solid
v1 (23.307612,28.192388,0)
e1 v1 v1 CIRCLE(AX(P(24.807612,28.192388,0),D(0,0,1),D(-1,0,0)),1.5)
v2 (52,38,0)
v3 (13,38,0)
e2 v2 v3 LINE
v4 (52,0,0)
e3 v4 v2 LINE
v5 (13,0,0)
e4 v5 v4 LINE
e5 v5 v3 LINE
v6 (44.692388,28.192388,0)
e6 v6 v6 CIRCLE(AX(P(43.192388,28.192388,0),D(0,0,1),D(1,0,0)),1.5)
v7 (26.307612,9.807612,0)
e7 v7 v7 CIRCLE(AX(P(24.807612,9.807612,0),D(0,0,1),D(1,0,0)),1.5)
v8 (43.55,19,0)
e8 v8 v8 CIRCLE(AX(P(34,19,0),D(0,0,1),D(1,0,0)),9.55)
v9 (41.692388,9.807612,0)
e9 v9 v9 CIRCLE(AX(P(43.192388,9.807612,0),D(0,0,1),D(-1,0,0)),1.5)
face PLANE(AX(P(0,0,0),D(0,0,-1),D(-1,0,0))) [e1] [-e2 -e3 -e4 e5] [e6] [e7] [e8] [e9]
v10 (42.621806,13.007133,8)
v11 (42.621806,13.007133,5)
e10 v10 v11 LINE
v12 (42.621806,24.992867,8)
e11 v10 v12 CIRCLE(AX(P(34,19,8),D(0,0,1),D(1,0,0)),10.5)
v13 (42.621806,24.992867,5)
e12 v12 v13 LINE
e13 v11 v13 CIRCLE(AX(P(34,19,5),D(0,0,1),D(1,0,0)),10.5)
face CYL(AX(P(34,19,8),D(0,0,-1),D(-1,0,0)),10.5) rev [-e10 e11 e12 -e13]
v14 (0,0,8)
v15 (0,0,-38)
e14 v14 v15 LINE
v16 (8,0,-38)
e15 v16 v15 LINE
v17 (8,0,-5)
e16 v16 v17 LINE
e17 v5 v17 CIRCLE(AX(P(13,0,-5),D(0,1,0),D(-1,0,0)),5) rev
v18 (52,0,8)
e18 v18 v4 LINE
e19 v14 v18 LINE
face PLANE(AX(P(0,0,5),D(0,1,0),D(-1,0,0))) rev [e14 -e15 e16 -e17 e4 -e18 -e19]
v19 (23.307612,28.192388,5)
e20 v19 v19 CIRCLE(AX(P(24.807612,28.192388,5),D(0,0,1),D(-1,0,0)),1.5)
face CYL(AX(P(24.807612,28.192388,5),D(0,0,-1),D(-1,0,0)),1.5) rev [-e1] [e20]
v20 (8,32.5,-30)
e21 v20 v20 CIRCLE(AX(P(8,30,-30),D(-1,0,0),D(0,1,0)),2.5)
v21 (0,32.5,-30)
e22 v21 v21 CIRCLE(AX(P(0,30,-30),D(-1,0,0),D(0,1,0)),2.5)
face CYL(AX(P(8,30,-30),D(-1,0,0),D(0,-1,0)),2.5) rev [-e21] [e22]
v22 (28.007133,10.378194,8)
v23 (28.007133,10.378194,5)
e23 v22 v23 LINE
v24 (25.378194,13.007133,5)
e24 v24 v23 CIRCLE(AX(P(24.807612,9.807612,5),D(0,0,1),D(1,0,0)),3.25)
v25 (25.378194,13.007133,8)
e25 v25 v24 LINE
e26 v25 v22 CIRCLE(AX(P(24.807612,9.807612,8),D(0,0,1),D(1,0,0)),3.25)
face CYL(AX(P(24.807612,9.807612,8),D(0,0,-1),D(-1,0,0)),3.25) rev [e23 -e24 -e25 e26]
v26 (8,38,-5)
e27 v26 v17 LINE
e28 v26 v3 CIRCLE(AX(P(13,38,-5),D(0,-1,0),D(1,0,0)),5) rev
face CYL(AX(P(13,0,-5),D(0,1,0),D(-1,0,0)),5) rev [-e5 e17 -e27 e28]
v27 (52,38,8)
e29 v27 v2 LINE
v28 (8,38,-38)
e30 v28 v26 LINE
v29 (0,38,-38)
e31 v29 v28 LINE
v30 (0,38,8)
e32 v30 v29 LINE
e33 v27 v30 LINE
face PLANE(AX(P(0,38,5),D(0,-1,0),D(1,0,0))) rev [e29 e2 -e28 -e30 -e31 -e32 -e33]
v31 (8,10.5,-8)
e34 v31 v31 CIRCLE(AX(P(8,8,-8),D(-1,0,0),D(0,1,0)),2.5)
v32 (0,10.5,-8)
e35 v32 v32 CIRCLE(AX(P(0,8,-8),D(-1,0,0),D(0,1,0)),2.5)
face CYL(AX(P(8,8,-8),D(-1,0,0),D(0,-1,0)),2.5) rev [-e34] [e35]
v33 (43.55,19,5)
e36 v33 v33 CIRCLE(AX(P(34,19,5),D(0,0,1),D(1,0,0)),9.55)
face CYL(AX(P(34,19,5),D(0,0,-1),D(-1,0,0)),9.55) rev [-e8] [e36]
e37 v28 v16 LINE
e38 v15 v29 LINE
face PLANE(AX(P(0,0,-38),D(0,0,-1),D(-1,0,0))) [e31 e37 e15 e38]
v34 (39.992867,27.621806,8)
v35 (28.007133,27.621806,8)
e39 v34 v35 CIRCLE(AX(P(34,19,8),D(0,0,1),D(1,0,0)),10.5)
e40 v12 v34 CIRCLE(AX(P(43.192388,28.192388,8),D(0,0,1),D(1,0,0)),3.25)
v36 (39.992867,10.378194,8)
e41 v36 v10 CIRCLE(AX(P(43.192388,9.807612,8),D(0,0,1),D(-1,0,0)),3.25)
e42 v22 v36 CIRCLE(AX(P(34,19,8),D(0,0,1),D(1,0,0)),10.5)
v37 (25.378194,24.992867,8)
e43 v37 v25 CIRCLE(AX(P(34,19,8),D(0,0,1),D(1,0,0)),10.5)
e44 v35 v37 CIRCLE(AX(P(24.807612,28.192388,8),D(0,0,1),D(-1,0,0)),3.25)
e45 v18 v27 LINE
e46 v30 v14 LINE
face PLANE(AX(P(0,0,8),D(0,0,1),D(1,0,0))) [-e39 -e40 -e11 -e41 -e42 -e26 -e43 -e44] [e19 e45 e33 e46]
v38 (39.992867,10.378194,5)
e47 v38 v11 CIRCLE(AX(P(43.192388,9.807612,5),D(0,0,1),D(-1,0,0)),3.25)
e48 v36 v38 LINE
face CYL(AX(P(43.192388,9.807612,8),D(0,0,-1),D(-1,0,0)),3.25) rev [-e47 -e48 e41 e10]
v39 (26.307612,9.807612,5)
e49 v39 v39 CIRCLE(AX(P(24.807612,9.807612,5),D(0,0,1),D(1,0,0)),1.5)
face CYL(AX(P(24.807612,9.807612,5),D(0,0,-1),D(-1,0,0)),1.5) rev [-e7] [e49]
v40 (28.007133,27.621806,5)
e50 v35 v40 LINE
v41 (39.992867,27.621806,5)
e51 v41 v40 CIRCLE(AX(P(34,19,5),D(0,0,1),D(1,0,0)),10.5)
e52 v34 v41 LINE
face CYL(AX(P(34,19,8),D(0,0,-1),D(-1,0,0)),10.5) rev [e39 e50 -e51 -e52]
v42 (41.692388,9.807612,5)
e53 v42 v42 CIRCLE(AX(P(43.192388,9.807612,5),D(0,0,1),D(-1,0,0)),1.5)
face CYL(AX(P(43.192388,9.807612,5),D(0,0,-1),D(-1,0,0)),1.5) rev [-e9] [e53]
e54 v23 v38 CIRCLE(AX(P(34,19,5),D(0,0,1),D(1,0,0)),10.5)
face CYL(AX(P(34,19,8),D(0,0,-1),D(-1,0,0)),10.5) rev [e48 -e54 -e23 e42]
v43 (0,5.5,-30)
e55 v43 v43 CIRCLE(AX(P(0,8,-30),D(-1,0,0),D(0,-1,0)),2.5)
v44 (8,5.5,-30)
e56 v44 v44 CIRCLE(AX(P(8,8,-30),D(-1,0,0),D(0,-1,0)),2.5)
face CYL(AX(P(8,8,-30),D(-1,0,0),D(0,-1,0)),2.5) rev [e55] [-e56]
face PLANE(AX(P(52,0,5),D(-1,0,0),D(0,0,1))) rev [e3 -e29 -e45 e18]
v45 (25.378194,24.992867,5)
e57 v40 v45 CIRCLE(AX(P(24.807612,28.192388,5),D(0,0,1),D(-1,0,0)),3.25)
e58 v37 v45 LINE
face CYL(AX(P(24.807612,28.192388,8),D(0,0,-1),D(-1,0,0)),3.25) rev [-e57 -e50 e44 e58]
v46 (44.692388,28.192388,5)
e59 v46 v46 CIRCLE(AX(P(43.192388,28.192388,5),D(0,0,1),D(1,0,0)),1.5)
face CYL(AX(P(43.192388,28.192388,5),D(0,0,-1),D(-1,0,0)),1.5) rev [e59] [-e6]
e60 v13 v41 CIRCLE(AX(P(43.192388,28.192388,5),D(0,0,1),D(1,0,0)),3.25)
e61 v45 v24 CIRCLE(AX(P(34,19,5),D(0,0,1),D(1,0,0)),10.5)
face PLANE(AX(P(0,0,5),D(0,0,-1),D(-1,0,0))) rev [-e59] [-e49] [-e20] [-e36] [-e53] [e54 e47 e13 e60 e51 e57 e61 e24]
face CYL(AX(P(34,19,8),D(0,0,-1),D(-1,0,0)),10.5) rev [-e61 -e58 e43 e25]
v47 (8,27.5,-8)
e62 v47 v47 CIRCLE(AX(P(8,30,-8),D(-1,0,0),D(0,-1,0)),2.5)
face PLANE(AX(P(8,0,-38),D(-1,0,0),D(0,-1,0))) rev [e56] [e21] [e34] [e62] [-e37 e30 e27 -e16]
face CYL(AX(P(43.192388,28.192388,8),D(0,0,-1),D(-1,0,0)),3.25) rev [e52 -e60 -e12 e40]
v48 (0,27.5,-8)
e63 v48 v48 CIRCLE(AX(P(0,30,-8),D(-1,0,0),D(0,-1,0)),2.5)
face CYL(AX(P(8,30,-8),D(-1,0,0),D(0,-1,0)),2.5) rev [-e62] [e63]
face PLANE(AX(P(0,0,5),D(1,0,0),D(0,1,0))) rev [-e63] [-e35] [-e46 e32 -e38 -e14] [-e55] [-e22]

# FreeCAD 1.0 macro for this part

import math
import FreeCAD as App
import Part
import Sketcher
from FreeCAD import Vector


def edges_at(feature, points):
    """Names of the edges that pass closest to the given points."""
    edges = feature.Shape.Edges
    near = lambda p: min(range(len(edges)), key=lambda i: edges[i].distToShape(Part.Vertex(*p))[0])
    return sorted({f"Edge{near(p) + 1}" for p in points})


def add_polygon(sketch, points):
    """Adds a closed chain of lines whose ends are joined by coincident constraints."""
    first, n = sketch.GeometryCount, len(points)
    for a, b in zip(points, points[1:] + points[:1]):
        sketch.addGeometry(Part.LineSegment(App.Vector(*a, 0), App.Vector(*b, 0)), False)
    for i in range(n):
        sketch.addConstraint(Sketcher.Constraint("Coincident", first + i, 2, first + (i + 1) % n, 1))

doc = App.newDocument("Part")
body = doc.addObject("PartDesign::Body", "Body")

# Sketch on XY plane
sketch1 = body.newObject("Sketcher::SketchObject", "Sketch")
sketch1.AttachmentSupport = (doc.getObject("XY_Plane"), [""])
sketch1.MapMode = "FlatFace"
add_polygon(sketch1, [(0, 38), (0, 0), (52, 0), (52, 38)])  # lines 0-3
sketch1.addGeometry(Part.Circle(Vector(24.8, 9.8, 0), Vector(0, 0, 1), 1.5), False)  # 4
sketch1.addGeometry(Part.Circle(Vector(43.2, 9.8, 0), Vector(0, 0, 1), 1.5), False)  # 5
sketch1.addGeometry(Part.Circle(Vector(34, 19, 0), Vector(0, 0, 1), 9.6), False)  # 6
sketch1.addGeometry(Part.Circle(Vector(24.8, 28.2, 0), Vector(0, 0, 1), 1.5), False)  # 7
sketch1.addGeometry(Part.Circle(Vector(43.2, 28.2, 0), Vector(0, 0, 1), 1.5), False)  # 8
sketch1.addConstraint([
    Sketcher.Constraint("Vertical", 0),
    Sketcher.Constraint("Horizontal", 1),
    Sketcher.Constraint("Vertical", 2),
    Sketcher.Constraint("Horizontal", 3),
    Sketcher.Constraint("Coincident", 0, 2, -1, 1),
    Sketcher.Constraint("Equal", 4, 5),
    Sketcher.Constraint("Equal", 5, 7),
    Sketcher.Constraint("Equal", 7, 8),
    Sketcher.Constraint("Horizontal", 4, 3, 5, 3),
    Sketcher.Constraint("Horizontal", 7, 3, 8, 3),
    Sketcher.Constraint("Vertical", 4, 3, 7, 3),
    Sketcher.Constraint("Vertical", 5, 3, 8, 3),
    Sketcher.Constraint("Diameter", 4, 3.0),
    Sketcher.Constraint("Diameter", 6, 19.1),
    Sketcher.Constraint("DistanceX", 1, 1, 1, 2, 52.0),
    Sketcher.Constraint("DistanceY", 0, 2, 0, 1, 38.0),
    Sketcher.Constraint("DistanceX", -1, 1, 6, 3, 34.0),
    Sketcher.Constraint("DistanceY", -1, 1, 6, 3, 19.0),
    Sketcher.Constraint("DistanceX", -1, 1, 4, 3, 24.807612),
    Sketcher.Constraint("DistanceY", -1, 1, 4, 3, 9.807612),
    Sketcher.Constraint("DistanceX", -1, 1, 5, 3, 43.192388),
    Sketcher.Constraint("DistanceY", -1, 1, 7, 3, 28.192388),
])
pad1 = body.newObject("PartDesign::Pad", "Pad")
pad1.Profile = sketch1
pad1.Length = 5

# Sketch on XY plane
sketch2 = body.newObject("Sketcher::SketchObject", "Sketch001")
sketch2.AttachmentSupport = (doc.getObject("XY_Plane"), [""])
sketch2.MapMode = "FlatFace"
add_polygon(sketch2, [(8, 38), (8, 0), (0, 0), (0, 38)])  # lines 0-3
sketch2.addConstraint([
    Sketcher.Constraint("Vertical", 0),
    Sketcher.Constraint("Horizontal", 1),
    Sketcher.Constraint("Vertical", 2),
    Sketcher.Constraint("Horizontal", 3),
    Sketcher.Constraint("Coincident", 1, 2, -1, 1),
    Sketcher.Constraint("DistanceX", 1, 2, 1, 1, 8.0),
    Sketcher.Constraint("DistanceY", 0, 2, 0, 1, 38.0),
])
pad2 = body.newObject("PartDesign::Pad", "Pad001")
pad2.Profile = sketch2
pad2.Length = 38
pad2.Reversed = True
doc.recompute()

fillet = body.newObject("PartDesign::Fillet", "Fillet")
fillet.Base = (pad2, edges_at(pad2, [(8, 19, 0)]))
fillet.Radius = 5

# Sketch on XY plane
sketch3 = body.newObject("Sketcher::SketchObject", "Sketch002")
sketch3.AttachmentSupport = (doc.getObject("XY_Plane"), [""])
sketch3.MapMode = "FlatFace"
sketch3.AttachmentOffset = App.Placement(Vector(0, 0, 5), App.Rotation())
add_polygon(sketch3, [(0, 38), (0, 0), (52, 0), (52, 38)])  # lines 0-3
sketch3.addGeometry(Part.ArcOfCircle(Part.Circle(Vector(43.2, 28.2, 0), Vector(0, 0, 1), 3.2), math.radians(-100), math.radians(190)), False)  # 4
sketch3.addGeometry(Part.ArcOfCircle(Part.Circle(Vector(34, 19, 0), Vector(0, 0, 1), 10.5), math.radians(-35), math.radians(35)), False)  # 5
sketch3.addGeometry(Part.ArcOfCircle(Part.Circle(Vector(43.2, 9.8, 0), Vector(0, 0, 1), 3.2), math.radians(170), math.radians(460)), False)  # 6
sketch3.addGeometry(Part.ArcOfCircle(Part.Circle(Vector(34, 19, 0), Vector(0, 0, 1), 10.5), math.radians(-125), math.radians(-55)), False)  # 7
sketch3.addGeometry(Part.ArcOfCircle(Part.Circle(Vector(24.8, 9.8, 0), Vector(0, 0, 1), 3.2), math.radians(80), math.radians(370)), False)  # 8
sketch3.addGeometry(Part.ArcOfCircle(Part.Circle(Vector(34, 19, 0), Vector(0, 0, 1), 10.5), math.radians(145), math.radians(215)), False)  # 9
sketch3.addGeometry(Part.ArcOfCircle(Part.Circle(Vector(24.8, 28.2, 0), Vector(0, 0, 1), 3.2), math.radians(-10), math.radians(280)), False)  # 10
sketch3.addGeometry(Part.ArcOfCircle(Part.Circle(Vector(34, 19, 0), Vector(0, 0, 1), 10.5), math.radians(55), math.radians(125)), False)  # 11
sketch3.addConstraint([
    Sketcher.Constraint("Coincident", 4, 1, 5, 2),
    Sketcher.Constraint("Coincident", 5, 1, 6, 2),
    Sketcher.Constraint("Coincident", 6, 1, 7, 2),
    Sketcher.Constraint("Coincident", 7, 1, 8, 2),
    Sketcher.Constraint("Coincident", 8, 1, 9, 2),
    Sketcher.Constraint("Coincident", 9, 1, 10, 2),
    Sketcher.Constraint("Coincident", 10, 1, 11, 2),
    Sketcher.Constraint("Coincident", 11, 1, 4, 2),
    Sketcher.Constraint("Vertical", 0),
    Sketcher.Constraint("Horizontal", 1),
    Sketcher.Constraint("Vertical", 2),
    Sketcher.Constraint("Horizontal", 3),
    Sketcher.Constraint("Coincident", 0, 2, -1, 1),
    Sketcher.Constraint("Coincident", 7, 3, 5, 3),
    Sketcher.Constraint("Coincident", 9, 3, 5, 3),
    Sketcher.Constraint("Coincident", 11, 3, 5, 3),
    Sketcher.Constraint("Equal", 4, 6),
    Sketcher.Constraint("Equal", 5, 7),
    Sketcher.Constraint("Equal", 6, 8),
    Sketcher.Constraint("Equal", 7, 9),
    Sketcher.Constraint("Equal", 8, 10),
    Sketcher.Constraint("Equal", 9, 11),
    Sketcher.Constraint("Horizontal", 6, 3, 8, 3),
    Sketcher.Constraint("Horizontal", 4, 3, 10, 3),
    Sketcher.Constraint("Horizontal", 6, 1, 7, 1),
    Sketcher.Constraint("Horizontal", 4, 1, 9, 1),
    Sketcher.Constraint("Vertical", 4, 3, 6, 3),
    Sketcher.Constraint("Vertical", 4, 1, 5, 1),
    Sketcher.Constraint("Radius", 5, 10.5),
    Sketcher.Constraint("DistanceX", 1, 1, 1, 2, 52.0),
    Sketcher.Constraint("DistanceY", 0, 2, 0, 1, 38.0),
    Sketcher.Constraint("Radius", 4, 3.25),
    Sketcher.Constraint("DistanceX", -1, 1, 5, 3, 34.0),
    Sketcher.Constraint("DistanceY", -1, 1, 5, 3, 19.0),
    Sketcher.Constraint("DistanceX", -1, 1, 4, 3, 43.192388),
    Sketcher.Constraint("DistanceY", -1, 1, 4, 3, 28.192388),
])
pad3 = body.newObject("PartDesign::Pad", "Pad002")
pad3.Profile = sketch3
pad3.Length = 3

# Sketch on YZ plane
sketch4 = body.newObject("Sketcher::SketchObject", "Sketch003")
sketch4.AttachmentSupport = (doc.getObject("YZ_Plane"), [""])
sketch4.MapMode = "FlatFace"
sketch4.addGeometry([
    Part.Circle(Vector(30, -8, 0), Vector(0, 0, 1), 2.5),
    Part.Circle(Vector(30, -30, 0), Vector(0, 0, 1), 2.5),
    Part.Circle(Vector(8, -8, 0), Vector(0, 0, 1), 2.5),
    Part.Circle(Vector(8, -30, 0), Vector(0, 0, 1), 2.5),
], False)
sketch4.addConstraint([
    Sketcher.Constraint("Equal", 0, 1),
    Sketcher.Constraint("Equal", 1, 2),
    Sketcher.Constraint("Equal", 2, 3),
    Sketcher.Constraint("Horizontal", 0, 3, 2, 3),
    Sketcher.Constraint("Horizontal", 1, 3, 3, 3),
    Sketcher.Constraint("Vertical", 0, 3, 1, 3),
    Sketcher.Constraint("Vertical", 2, 3, 3, 3),
    Sketcher.Constraint("Diameter", 0, 5.0),
    Sketcher.Constraint("DistanceX", -1, 1, 0, 3, 30.0),
    Sketcher.Constraint("DistanceY", 0, 3, -1, 1, 8.0),
    Sketcher.Constraint("DistanceY", 1, 3, -1, 1, 30.0),
    Sketcher.Constraint("DistanceX", -1, 1, 2, 3, 8.0),
])
pocket1 = body.newObject("PartDesign::Pocket", "Pocket")
pocket1.Profile = sketch4
pocket1.Length = 8
pocket1.Reversed = True

doc.recompute()
